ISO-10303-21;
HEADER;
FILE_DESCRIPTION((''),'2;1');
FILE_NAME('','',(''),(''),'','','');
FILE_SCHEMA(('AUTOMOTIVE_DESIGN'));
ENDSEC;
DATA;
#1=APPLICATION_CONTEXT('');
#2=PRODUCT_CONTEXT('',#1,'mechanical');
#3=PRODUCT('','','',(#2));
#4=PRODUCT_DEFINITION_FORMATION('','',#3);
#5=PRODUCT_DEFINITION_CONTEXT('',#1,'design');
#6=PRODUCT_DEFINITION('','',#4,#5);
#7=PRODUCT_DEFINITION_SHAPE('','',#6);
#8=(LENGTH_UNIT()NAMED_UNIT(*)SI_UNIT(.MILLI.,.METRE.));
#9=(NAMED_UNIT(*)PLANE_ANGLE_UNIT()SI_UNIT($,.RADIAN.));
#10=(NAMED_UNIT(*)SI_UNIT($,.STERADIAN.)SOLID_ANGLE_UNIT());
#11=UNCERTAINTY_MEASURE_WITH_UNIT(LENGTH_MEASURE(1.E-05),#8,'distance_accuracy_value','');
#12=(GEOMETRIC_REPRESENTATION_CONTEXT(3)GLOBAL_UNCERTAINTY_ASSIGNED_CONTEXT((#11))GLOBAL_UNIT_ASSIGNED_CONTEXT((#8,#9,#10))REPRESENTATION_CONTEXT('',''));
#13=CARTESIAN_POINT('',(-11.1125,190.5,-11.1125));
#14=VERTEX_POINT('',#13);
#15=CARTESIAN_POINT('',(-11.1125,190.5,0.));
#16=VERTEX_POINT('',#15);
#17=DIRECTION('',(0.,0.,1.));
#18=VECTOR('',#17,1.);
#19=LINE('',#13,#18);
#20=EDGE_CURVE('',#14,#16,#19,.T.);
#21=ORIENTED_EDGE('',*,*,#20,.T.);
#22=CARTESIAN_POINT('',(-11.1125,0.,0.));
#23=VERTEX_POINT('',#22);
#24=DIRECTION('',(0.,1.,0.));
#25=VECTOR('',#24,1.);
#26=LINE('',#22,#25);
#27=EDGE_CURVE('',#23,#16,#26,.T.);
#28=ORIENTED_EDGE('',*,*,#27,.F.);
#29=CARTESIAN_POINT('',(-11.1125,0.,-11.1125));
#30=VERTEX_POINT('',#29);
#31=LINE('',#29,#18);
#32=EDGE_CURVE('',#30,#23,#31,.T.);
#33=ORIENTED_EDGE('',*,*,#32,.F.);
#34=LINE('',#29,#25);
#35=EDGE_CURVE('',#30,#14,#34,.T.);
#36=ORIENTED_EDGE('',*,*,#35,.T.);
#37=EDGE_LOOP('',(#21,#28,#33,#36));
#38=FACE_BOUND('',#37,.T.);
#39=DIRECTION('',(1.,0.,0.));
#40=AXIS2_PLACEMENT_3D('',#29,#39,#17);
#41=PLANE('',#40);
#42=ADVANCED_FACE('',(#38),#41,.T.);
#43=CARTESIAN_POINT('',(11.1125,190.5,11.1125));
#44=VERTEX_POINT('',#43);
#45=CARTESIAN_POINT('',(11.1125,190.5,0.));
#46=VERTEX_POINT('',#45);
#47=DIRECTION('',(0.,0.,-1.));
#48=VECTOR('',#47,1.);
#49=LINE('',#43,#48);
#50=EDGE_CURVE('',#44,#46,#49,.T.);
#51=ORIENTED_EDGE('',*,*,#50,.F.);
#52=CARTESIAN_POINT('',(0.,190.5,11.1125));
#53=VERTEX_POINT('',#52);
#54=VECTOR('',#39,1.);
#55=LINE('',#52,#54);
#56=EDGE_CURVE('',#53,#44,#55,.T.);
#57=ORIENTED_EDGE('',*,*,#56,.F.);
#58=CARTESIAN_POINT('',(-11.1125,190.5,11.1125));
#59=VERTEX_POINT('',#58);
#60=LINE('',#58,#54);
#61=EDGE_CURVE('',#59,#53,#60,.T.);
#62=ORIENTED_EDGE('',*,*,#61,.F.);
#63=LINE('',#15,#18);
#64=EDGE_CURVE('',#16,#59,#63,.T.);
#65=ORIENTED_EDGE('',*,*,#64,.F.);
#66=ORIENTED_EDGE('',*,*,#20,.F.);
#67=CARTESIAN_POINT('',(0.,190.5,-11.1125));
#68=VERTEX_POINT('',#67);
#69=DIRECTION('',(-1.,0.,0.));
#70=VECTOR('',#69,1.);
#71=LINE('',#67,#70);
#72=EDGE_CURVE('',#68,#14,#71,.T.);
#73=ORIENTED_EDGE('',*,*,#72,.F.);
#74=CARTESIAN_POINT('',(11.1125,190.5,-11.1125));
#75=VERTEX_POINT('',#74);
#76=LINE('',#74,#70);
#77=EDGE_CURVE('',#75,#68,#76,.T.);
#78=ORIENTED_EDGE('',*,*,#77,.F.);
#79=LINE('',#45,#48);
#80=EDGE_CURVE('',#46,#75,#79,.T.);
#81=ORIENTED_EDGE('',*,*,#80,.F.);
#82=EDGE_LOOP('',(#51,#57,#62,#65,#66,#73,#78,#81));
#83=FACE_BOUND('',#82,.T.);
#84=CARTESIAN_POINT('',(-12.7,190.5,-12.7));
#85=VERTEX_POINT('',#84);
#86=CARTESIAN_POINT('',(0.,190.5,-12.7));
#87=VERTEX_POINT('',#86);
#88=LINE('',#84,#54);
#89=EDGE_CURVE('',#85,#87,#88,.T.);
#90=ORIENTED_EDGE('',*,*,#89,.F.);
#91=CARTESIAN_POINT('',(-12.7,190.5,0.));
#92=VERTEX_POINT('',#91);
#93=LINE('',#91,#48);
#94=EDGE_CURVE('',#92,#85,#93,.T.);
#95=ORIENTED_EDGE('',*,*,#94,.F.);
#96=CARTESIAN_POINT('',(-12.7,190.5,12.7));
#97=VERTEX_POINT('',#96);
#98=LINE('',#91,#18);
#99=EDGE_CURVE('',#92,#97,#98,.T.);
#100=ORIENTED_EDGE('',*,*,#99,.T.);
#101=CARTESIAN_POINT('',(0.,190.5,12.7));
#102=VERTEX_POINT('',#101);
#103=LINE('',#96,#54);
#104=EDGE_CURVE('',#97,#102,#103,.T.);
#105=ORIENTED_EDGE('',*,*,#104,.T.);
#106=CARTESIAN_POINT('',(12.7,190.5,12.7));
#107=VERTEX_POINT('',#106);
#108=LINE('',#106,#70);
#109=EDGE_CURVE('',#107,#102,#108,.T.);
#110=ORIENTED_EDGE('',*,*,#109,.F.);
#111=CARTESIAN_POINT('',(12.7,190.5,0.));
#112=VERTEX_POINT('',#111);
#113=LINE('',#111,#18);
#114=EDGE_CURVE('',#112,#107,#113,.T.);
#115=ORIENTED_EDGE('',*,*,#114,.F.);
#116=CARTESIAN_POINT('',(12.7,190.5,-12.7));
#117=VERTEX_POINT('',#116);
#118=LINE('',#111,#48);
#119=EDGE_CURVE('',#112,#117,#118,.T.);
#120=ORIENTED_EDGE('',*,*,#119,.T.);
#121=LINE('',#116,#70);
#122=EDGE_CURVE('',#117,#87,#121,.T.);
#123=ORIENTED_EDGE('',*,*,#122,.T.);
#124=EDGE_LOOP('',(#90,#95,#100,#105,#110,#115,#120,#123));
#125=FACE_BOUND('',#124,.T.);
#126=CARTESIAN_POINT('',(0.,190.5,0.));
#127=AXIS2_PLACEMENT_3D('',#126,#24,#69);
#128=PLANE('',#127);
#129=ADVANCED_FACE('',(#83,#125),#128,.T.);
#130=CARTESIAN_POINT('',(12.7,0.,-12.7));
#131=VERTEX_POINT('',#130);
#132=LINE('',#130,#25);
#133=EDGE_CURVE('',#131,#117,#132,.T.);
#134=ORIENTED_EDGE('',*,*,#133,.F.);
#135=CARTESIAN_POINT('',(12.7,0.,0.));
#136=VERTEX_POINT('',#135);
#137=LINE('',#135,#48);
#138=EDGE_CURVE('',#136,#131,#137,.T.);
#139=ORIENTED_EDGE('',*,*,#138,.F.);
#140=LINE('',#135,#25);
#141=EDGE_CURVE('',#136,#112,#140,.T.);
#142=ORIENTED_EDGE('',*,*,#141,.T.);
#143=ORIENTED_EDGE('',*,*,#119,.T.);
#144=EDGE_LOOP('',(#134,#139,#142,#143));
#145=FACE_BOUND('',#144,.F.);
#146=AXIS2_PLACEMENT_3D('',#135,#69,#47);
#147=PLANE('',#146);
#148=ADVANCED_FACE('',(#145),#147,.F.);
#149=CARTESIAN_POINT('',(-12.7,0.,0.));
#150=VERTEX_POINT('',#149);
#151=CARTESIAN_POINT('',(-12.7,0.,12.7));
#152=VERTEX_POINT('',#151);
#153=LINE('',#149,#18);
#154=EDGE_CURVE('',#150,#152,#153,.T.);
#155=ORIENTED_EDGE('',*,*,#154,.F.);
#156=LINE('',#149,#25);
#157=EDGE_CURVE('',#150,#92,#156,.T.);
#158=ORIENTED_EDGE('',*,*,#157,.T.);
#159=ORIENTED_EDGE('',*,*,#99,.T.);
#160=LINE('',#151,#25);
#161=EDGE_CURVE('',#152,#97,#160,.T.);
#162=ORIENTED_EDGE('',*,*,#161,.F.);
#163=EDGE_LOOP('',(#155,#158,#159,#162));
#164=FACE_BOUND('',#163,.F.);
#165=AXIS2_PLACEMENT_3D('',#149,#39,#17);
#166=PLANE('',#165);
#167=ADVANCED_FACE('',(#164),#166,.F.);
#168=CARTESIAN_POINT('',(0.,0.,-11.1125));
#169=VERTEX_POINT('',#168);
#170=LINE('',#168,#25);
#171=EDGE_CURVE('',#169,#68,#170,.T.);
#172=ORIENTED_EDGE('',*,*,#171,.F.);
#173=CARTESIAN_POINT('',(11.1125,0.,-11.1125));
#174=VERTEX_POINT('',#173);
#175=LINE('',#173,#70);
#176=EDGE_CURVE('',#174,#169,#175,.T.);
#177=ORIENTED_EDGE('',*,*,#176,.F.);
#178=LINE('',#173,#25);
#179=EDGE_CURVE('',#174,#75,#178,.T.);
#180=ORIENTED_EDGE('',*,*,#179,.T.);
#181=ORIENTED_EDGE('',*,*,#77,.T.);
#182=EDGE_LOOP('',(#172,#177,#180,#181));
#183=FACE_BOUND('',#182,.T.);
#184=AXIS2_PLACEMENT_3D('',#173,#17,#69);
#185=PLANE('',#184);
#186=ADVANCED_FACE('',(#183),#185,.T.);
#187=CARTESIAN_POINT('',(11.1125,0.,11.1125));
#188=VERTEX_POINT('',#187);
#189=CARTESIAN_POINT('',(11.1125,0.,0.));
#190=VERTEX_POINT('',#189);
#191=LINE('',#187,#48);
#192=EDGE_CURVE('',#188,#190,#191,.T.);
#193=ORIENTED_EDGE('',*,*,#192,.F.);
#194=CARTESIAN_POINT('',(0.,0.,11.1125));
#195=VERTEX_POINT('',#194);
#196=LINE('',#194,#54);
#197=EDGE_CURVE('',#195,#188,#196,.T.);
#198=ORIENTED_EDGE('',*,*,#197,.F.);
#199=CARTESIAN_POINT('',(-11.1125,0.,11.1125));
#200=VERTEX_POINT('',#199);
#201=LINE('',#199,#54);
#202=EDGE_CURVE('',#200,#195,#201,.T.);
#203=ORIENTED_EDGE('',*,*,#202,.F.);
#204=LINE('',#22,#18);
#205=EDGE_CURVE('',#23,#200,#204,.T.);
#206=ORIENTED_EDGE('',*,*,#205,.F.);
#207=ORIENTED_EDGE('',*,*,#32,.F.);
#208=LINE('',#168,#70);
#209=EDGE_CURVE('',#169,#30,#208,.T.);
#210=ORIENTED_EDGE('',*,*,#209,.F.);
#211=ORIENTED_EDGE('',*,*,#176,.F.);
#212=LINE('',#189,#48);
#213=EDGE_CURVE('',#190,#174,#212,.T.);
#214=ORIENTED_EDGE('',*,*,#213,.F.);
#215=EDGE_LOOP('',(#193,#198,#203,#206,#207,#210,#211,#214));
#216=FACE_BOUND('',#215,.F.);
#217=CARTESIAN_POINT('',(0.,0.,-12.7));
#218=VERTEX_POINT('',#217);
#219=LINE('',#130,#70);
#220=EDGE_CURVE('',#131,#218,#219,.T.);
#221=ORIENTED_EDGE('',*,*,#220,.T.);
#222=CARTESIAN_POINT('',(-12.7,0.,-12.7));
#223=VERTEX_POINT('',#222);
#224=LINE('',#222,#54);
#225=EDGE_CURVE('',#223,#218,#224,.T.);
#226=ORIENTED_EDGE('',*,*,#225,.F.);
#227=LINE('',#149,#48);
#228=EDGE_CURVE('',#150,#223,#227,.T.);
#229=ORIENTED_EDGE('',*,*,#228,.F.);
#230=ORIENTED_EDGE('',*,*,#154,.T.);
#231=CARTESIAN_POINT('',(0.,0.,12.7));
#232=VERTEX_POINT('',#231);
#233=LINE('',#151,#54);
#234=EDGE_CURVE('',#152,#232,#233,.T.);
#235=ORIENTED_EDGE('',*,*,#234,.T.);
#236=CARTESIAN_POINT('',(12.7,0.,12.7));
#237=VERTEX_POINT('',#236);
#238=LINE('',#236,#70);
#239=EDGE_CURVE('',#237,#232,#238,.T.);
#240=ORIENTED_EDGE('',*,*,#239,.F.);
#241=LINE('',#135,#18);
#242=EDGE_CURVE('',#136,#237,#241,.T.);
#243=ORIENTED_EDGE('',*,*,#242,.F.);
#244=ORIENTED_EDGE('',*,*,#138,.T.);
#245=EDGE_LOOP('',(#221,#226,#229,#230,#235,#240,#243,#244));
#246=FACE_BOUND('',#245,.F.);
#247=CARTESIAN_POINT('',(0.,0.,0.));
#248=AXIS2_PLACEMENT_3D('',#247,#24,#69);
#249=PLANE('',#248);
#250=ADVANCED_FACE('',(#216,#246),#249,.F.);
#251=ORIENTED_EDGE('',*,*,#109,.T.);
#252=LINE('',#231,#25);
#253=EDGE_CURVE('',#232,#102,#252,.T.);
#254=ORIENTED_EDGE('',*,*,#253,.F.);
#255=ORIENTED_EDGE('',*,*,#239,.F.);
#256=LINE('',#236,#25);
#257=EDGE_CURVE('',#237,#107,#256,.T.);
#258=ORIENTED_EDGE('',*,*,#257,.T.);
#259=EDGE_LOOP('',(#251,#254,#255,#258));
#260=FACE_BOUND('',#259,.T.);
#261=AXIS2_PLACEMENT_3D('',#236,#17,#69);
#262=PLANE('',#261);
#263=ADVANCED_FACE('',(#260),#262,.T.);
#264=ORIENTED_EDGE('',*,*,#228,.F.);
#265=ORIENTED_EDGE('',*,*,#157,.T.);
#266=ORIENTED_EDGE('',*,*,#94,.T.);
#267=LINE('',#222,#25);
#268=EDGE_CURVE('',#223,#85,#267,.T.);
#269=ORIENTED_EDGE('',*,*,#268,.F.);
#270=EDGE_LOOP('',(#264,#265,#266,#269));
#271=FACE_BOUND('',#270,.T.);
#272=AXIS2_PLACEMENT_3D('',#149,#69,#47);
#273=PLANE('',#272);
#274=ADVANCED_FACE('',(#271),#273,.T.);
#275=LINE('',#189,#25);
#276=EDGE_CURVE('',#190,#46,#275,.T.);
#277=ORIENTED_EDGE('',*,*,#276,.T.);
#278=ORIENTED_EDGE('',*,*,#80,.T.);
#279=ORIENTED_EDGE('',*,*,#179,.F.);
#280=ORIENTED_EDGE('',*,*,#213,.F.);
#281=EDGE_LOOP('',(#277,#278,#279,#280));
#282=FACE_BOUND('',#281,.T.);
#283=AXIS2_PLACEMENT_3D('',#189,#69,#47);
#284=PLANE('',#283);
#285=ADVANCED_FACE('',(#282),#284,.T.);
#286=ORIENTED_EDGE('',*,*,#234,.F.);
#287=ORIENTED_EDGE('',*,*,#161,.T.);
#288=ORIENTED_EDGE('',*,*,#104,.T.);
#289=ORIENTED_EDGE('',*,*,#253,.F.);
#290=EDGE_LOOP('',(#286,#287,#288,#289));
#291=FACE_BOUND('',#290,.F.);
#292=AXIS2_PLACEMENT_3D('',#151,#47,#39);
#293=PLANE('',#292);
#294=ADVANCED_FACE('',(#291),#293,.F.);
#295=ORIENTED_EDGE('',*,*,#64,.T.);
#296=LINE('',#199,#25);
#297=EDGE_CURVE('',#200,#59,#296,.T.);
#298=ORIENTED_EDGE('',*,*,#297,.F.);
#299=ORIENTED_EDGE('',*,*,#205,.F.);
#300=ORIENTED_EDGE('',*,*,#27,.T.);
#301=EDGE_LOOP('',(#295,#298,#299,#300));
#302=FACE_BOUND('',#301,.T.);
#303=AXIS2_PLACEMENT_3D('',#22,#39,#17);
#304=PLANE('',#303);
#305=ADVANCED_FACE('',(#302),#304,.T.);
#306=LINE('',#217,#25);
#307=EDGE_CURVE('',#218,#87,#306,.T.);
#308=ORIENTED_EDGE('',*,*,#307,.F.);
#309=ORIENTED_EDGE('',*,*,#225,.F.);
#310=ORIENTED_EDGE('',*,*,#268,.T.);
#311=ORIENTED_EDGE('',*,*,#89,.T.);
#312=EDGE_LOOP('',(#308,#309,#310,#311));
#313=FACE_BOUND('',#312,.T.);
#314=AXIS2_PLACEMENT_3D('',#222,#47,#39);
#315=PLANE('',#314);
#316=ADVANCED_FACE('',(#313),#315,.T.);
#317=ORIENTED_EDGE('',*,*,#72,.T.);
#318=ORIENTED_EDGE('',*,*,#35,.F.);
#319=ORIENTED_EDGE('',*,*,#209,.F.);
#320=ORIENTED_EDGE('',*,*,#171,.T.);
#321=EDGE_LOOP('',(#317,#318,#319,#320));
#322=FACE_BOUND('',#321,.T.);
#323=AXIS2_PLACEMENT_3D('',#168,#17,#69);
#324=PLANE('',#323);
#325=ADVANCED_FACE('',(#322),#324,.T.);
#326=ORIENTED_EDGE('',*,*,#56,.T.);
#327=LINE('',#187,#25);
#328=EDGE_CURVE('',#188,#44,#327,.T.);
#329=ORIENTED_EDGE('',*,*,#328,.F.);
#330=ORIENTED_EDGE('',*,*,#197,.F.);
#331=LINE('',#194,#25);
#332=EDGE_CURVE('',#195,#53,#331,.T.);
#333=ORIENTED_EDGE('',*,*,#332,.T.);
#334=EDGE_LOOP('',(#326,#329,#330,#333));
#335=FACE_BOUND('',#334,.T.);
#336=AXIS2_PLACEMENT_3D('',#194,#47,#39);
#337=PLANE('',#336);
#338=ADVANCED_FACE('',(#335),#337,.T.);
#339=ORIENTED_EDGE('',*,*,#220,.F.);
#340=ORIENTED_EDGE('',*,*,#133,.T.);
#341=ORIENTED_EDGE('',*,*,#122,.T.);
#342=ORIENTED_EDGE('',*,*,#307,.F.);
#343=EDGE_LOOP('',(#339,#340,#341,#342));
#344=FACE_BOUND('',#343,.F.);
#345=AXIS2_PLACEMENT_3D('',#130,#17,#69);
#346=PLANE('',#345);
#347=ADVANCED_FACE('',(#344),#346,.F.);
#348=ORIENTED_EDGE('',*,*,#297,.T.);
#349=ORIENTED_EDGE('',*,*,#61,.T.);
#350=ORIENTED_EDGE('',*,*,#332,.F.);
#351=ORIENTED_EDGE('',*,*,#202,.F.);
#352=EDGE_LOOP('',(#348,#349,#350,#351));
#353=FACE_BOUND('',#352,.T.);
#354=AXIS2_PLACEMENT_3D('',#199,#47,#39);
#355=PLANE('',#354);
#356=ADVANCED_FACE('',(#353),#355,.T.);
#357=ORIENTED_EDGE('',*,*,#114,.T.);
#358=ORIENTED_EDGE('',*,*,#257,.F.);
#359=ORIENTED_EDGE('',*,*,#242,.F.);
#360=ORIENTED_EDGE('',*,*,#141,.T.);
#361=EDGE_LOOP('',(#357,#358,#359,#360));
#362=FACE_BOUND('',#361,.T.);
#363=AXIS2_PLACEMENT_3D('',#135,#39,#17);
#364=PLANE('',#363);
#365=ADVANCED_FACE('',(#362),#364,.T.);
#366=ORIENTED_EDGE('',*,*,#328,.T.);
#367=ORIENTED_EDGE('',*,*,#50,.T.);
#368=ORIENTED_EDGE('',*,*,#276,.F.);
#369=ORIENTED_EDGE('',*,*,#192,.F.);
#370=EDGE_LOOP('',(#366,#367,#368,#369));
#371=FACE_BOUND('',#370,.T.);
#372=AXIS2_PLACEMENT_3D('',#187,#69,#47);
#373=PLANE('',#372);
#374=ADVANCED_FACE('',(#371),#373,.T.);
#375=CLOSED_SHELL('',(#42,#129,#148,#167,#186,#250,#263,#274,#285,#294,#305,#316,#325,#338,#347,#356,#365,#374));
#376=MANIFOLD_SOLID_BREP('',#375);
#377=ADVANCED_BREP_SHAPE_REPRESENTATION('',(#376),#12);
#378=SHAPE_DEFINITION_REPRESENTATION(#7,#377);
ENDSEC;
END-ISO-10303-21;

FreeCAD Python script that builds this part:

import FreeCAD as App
import Part
import Sketcher
from FreeCAD import Vector
Q = App.Units.Quantity


def add_polygon(sketch, points):
    """Adds a closed chain of lines whose ends are joined by coincident constraints."""
    first, n = sketch.GeometryCount, len(points)
    for a, b in zip(points, points[1:] + points[:1]):
        sketch.addGeometry(Part.LineSegment(App.Vector(*a, 0), App.Vector(*b, 0)), False)
    for i in range(n):
        sketch.addConstraint(Sketcher.Constraint("Coincident", first + i, 2, first + (i + 1) % n, 1))

doc = App.newDocument("Part")
body = doc.addObject("PartDesign::Body", "Body")

sketch1 = doc.addObject("Sketcher::SketchObject", "Sketch")
body.addObject(sketch1)
sketch1.AttachmentSupport = (doc.XZ_Plane, [""])
sketch1.MapMode = "FlatFace"
add_polygon(sketch1, [(-13, -13), (-13, 13), (13, 13), (13, -13)])
add_polygon(sketch1, [(-11, -11), (11, -11), (11, 11), (-11, 11)])
sketch1.addConstraint([
    Sketcher.Constraint("Vertical", 0),
    Sketcher.Constraint("Horizontal", 1),
    Sketcher.Constraint("Vertical", 2),
    Sketcher.Constraint("Horizontal", 3),
    Sketcher.Constraint("Horizontal", 4),
    Sketcher.Constraint("Vertical", 5),
    Sketcher.Constraint("Horizontal", 6),
    Sketcher.Constraint("Vertical", 7),
    Sketcher.Constraint("Symmetric", 0, 2, 2, 2, -1, 1),
    Sketcher.Constraint("Symmetric", 4, 2, 6, 2, -1, 1),
    Sketcher.Constraint("Equal", 3, 0),
    Sketcher.Constraint("Equal", 6, 5),
    Sketcher.Constraint("DistanceX", 0, 2, -1, 1, Q("0.5 in")),
    Sketcher.Constraint("DistanceX", 4, 2, 2, 2, Q("0.0625 in")),
])
pad1 = doc.addObject("PartDesign::Pad", "Pad")
body.addObject(pad1)
pad1.Profile = sketch1
pad1.Length = Q("7.5 in")
pad1.Reversed = True

doc.recompute()
